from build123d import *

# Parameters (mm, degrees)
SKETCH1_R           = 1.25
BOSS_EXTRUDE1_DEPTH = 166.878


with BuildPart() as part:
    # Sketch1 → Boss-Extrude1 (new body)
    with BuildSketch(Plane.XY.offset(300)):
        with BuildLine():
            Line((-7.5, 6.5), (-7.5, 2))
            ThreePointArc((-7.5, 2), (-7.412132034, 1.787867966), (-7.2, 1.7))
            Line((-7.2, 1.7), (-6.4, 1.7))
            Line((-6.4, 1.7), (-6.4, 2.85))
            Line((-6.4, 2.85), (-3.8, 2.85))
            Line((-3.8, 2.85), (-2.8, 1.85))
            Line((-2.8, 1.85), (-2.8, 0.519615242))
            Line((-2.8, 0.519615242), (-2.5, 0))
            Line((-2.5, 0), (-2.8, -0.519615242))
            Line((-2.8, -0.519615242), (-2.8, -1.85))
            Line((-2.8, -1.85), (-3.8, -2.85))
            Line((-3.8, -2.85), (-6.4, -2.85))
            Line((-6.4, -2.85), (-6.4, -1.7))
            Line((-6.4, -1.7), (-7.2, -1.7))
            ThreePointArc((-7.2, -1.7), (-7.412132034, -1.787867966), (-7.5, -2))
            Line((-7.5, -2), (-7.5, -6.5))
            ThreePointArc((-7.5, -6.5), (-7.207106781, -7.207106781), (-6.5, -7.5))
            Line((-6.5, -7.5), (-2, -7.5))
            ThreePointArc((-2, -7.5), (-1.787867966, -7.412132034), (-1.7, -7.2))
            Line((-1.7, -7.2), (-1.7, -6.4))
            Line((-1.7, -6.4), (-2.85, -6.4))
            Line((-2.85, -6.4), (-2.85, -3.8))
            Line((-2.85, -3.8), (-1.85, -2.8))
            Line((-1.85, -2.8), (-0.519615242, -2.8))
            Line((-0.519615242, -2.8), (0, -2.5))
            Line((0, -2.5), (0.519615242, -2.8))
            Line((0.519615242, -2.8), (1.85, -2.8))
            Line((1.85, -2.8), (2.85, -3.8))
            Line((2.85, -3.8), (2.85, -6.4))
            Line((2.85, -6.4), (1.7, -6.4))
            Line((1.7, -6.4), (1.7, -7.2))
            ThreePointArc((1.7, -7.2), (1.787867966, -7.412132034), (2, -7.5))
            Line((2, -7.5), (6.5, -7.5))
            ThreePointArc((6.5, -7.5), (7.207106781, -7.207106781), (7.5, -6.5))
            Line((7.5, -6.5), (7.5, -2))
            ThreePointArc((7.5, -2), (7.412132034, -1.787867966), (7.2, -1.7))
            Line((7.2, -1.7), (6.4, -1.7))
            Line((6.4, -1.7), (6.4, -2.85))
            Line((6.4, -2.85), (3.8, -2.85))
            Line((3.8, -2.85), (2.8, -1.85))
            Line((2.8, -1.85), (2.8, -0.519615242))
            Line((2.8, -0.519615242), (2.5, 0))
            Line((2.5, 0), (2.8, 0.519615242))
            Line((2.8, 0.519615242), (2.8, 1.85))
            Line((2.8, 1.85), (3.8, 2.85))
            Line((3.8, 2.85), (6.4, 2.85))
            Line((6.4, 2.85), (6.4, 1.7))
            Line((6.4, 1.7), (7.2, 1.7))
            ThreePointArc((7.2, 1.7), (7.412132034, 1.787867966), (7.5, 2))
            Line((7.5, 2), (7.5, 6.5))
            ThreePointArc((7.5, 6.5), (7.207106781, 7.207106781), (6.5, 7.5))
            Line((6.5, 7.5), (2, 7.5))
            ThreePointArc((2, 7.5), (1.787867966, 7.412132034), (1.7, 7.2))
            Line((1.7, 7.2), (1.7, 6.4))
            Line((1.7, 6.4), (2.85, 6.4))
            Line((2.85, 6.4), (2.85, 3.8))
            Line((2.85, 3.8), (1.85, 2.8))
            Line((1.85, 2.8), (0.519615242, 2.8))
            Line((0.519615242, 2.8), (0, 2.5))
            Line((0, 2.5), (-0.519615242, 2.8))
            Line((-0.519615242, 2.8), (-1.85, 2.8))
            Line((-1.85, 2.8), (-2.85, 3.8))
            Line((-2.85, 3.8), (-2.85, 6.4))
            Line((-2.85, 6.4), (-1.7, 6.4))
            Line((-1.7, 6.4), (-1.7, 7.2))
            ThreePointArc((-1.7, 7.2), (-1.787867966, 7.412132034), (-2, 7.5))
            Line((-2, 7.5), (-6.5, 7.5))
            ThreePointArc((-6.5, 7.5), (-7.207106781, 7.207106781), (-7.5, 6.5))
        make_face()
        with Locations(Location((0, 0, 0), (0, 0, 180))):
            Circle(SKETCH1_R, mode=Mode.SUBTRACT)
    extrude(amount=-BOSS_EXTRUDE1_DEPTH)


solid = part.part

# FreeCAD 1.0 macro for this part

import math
import FreeCAD as App
import Part
import Sketcher
Q = App.Units.Quantity

doc = App.newDocument("Part")
params = doc.addObject("Spreadsheet::Sheet", "Params")
for row, (alias, value) in enumerate([
    ("sketch1_radius", "1 mm"),
    ("sketch1_diameter", "2.5 mm"),
    ("sketch1_radius2", "0.3 mm"),
    ("sketch1_width", "0.8 mm"),
    ("sketch1_width2", "2.6 mm"),
    ("pad1_length", "166.878 mm"),
], start=1):
    params.set(f"A{row}", alias)
    params.set(f"B{row}", "=" + value)
    params.setAlias(f"B{row}", alias)

body = doc.addObject("PartDesign::Body", "Body")

sketch1 = body.newObject("Sketcher::SketchObject", "Sketch")
sketch1.AttachmentSupport = (doc.getObject("XY_Plane"), [""])
sketch1.MapMode = "FlatFace"
sketch1.AttachmentOffset = App.Placement(App.Vector(0, 0, 300), App.Rotation())
sketch1.addGeometry([
    Part.LineSegment(App.Vector(-7.5, 6.5, 0), App.Vector(-7.5, 2, 0)),
    Part.ArcOfCircle(Part.Circle(App.Vector(-7.2, 2, 0), App.Vector(0, 0, 1), 0.3), math.radians(-180), math.radians(-90)),
    Part.LineSegment(App.Vector(-7.2, 1.7, 0), App.Vector(-6.4, 1.7, 0)),
    Part.LineSegment(App.Vector(-6.4, 1.7, 0), App.Vector(-6.4, 2.85, 0)),
    Part.LineSegment(App.Vector(-6.4, 2.85, 0), App.Vector(-3.8, 2.85, 0)),
    Part.LineSegment(App.Vector(-3.8, 2.85, 0), App.Vector(-2.8, 1.85, 0)),
    Part.LineSegment(App.Vector(-2.8, 1.85, 0), App.Vector(-2.8, 0.52, 0)),
    Part.LineSegment(App.Vector(-2.8, 0.52, 0), App.Vector(-2.5, 0, 0)),
    Part.LineSegment(App.Vector(-2.5, 0, 0), App.Vector(-2.8, -0.52, 0)),
    Part.LineSegment(App.Vector(-2.8, -0.52, 0), App.Vector(-2.8, -1.85, 0)),
    Part.LineSegment(App.Vector(-2.8, -1.85, 0), App.Vector(-3.8, -2.85, 0)),
    Part.LineSegment(App.Vector(-3.8, -2.85, 0), App.Vector(-6.4, -2.85, 0)),
    Part.LineSegment(App.Vector(-6.4, -2.85, 0), App.Vector(-6.4, -1.7, 0)),
    Part.LineSegment(App.Vector(-6.4, -1.7, 0), App.Vector(-7.2, -1.7, 0)),
    Part.ArcOfCircle(Part.Circle(App.Vector(-7.2, -2, 0), App.Vector(0, 0, 1), 0.3), math.radians(90), math.radians(180)),
    Part.LineSegment(App.Vector(-7.5, -2, 0), App.Vector(-7.5, -6.5, 0)),
    Part.ArcOfCircle(Part.Circle(App.Vector(-6.5, -6.5, 0), App.Vector(0, 0, 1), 1), math.radians(-180), math.radians(-90)),
    Part.LineSegment(App.Vector(-6.5, -7.5, 0), App.Vector(-2, -7.5, 0)),
    Part.ArcOfCircle(Part.Circle(App.Vector(-2, -7.2, 0), App.Vector(0, 0, 1), 0.3), math.radians(-90), math.radians(0)),
    Part.LineSegment(App.Vector(-1.7, -7.2, 0), App.Vector(-1.7, -6.4, 0)),
    Part.LineSegment(App.Vector(-1.7, -6.4, 0), App.Vector(-2.85, -6.4, 0)),
    Part.LineSegment(App.Vector(-2.85, -6.4, 0), App.Vector(-2.85, -3.8, 0)),
    Part.LineSegment(App.Vector(-2.85, -3.8, 0), App.Vector(-1.85, -2.8, 0)),
    Part.LineSegment(App.Vector(-1.85, -2.8, 0), App.Vector(-0.52, -2.8, 0)),
    Part.LineSegment(App.Vector(-0.52, -2.8, 0), App.Vector(0, -2.5, 0)),
    Part.LineSegment(App.Vector(0, -2.5, 0), App.Vector(0.52, -2.8, 0)),
    Part.LineSegment(App.Vector(0.52, -2.8, 0), App.Vector(1.85, -2.8, 0)),
    Part.LineSegment(App.Vector(1.85, -2.8, 0), App.Vector(2.85, -3.8, 0)),
    Part.LineSegment(App.Vector(2.85, -3.8, 0), App.Vector(2.85, -6.4, 0)),
    Part.LineSegment(App.Vector(2.85, -6.4, 0), App.Vector(1.7, -6.4, 0)),
    Part.LineSegment(App.Vector(1.7, -6.4, 0), App.Vector(1.7, -7.2, 0)),
    Part.ArcOfCircle(Part.Circle(App.Vector(2, -7.2, 0), App.Vector(0, 0, 1), 0.3), math.radians(-180), math.radians(-90)),
    Part.LineSegment(App.Vector(2, -7.5, 0), App.Vector(6.5, -7.5, 0)),
    Part.ArcOfCircle(Part.Circle(App.Vector(6.5, -6.5, 0), App.Vector(0, 0, 1), 1), math.radians(-90), math.radians(0)),
    Part.LineSegment(App.Vector(7.5, -6.5, 0), App.Vector(7.5, -2, 0)),
    Part.ArcOfCircle(Part.Circle(App.Vector(7.2, -2, 0), App.Vector(0, 0, 1), 0.3), math.radians(0), math.radians(90)),
    Part.LineSegment(App.Vector(7.2, -1.7, 0), App.Vector(6.4, -1.7, 0)),
    Part.LineSegment(App.Vector(6.4, -1.7, 0), App.Vector(6.4, -2.85, 0)),
    Part.LineSegment(App.Vector(6.4, -2.85, 0), App.Vector(3.8, -2.85, 0)),
    Part.LineSegment(App.Vector(3.8, -2.85, 0), App.Vector(2.8, -1.85, 0)),
    Part.LineSegment(App.Vector(2.8, -1.85, 0), App.Vector(2.8, -0.52, 0)),
    Part.LineSegment(App.Vector(2.8, -0.52, 0), App.Vector(2.5, 0, 0)),
    Part.LineSegment(App.Vector(2.5, 0, 0), App.Vector(2.8, 0.52, 0)),
    Part.LineSegment(App.Vector(2.8, 0.52, 0), App.Vector(2.8, 1.85, 0)),
    Part.LineSegment(App.Vector(2.8, 1.85, 0), App.Vector(3.8, 2.85, 0)),
    Part.LineSegment(App.Vector(3.8, 2.85, 0), App.Vector(6.4, 2.85, 0)),
    Part.LineSegment(App.Vector(6.4, 2.85, 0), App.Vector(6.4, 1.7, 0)),
    Part.LineSegment(App.Vector(6.4, 1.7, 0), App.Vector(7.2, 1.7, 0)),
    Part.ArcOfCircle(Part.Circle(App.Vector(7.2, 2, 0), App.Vector(0, 0, 1), 0.3), math.radians(-90), math.radians(0)),
    Part.LineSegment(App.Vector(7.5, 2, 0), App.Vector(7.5, 6.5, 0)),
    Part.ArcOfCircle(Part.Circle(App.Vector(6.5, 6.5, 0), App.Vector(0, 0, 1), 1), math.radians(0), math.radians(90)),
    Part.LineSegment(App.Vector(6.5, 7.5, 0), App.Vector(2, 7.5, 0)),
    Part.ArcOfCircle(Part.Circle(App.Vector(2, 7.2, 0), App.Vector(0, 0, 1), 0.3), math.radians(90), math.radians(180)),
    Part.LineSegment(App.Vector(1.7, 7.2, 0), App.Vector(1.7, 6.4, 0)),
    Part.LineSegment(App.Vector(1.7, 6.4, 0), App.Vector(2.85, 6.4, 0)),
    Part.LineSegment(App.Vector(2.85, 6.4, 0), App.Vector(2.85, 3.8, 0)),
    Part.LineSegment(App.Vector(2.85, 3.8, 0), App.Vector(1.85, 2.8, 0)),
    Part.LineSegment(App.Vector(1.85, 2.8, 0), App.Vector(0.52, 2.8, 0)),
    Part.LineSegment(App.Vector(0.52, 2.8, 0), App.Vector(0, 2.5, 0)),
    Part.LineSegment(App.Vector(0, 2.5, 0), App.Vector(-0.52, 2.8, 0)),
    Part.LineSegment(App.Vector(-0.52, 2.8, 0), App.Vector(-1.85, 2.8, 0)),
    Part.LineSegment(App.Vector(-1.85, 2.8, 0), App.Vector(-2.85, 3.8, 0)),
    Part.LineSegment(App.Vector(-2.85, 3.8, 0), App.Vector(-2.85, 6.4, 0)),
    Part.LineSegment(App.Vector(-2.85, 6.4, 0), App.Vector(-1.7, 6.4, 0)),
    Part.LineSegment(App.Vector(-1.7, 6.4, 0), App.Vector(-1.7, 7.2, 0)),
    Part.ArcOfCircle(Part.Circle(App.Vector(-2, 7.2, 0), App.Vector(0, 0, 1), 0.3), math.radians(0), math.radians(90)),
    Part.LineSegment(App.Vector(-2, 7.5, 0), App.Vector(-6.5, 7.5, 0)),
    Part.ArcOfCircle(Part.Circle(App.Vector(-6.5, 6.5, 0), App.Vector(0, 0, 1), 1), math.radians(90), math.radians(180)),
    Part.Circle(App.Vector(0, 0, 0), App.Vector(0, 0, 1), 1.25),
], False)
sketch1.addConstraint([
    Sketcher.Constraint("Tangent", 0, 2, 1, 1),
    Sketcher.Constraint("Tangent", 1, 2, 2, 1),
    Sketcher.Constraint("Coincident", 2, 2, 3, 1),
    Sketcher.Constraint("Coincident", 3, 2, 4, 1),
    Sketcher.Constraint("Coincident", 4, 2, 5, 1),
    Sketcher.Constraint("Coincident", 5, 2, 6, 1),
    Sketcher.Constraint("Coincident", 6, 2, 7, 1),
    Sketcher.Constraint("Coincident", 7, 2, 8, 1),
    Sketcher.Constraint("Coincident", 8, 2, 9, 1),
    Sketcher.Constraint("Coincident", 9, 2, 10, 1),
    Sketcher.Constraint("Coincident", 10, 2, 11, 1),
    Sketcher.Constraint("Coincident", 11, 2, 12, 1),
    Sketcher.Constraint("Coincident", 12, 2, 13, 1),
    Sketcher.Constraint("Tangent", 13, 2, 14, 1),
    Sketcher.Constraint("Tangent", 14, 2, 15, 1),
    Sketcher.Constraint("Tangent", 15, 2, 16, 1),
    Sketcher.Constraint("Tangent", 16, 2, 17, 1),
    Sketcher.Constraint("Tangent", 17, 2, 18, 1),
    Sketcher.Constraint("Tangent", 18, 2, 19, 1),
    Sketcher.Constraint("Coincident", 19, 2, 20, 1),
    Sketcher.Constraint("Coincident", 20, 2, 21, 1),
    Sketcher.Constraint("Coincident", 21, 2, 22, 1),
    Sketcher.Constraint("Coincident", 22, 2, 23, 1),
    Sketcher.Constraint("Coincident", 23, 2, 24, 1),
    Sketcher.Constraint("Coincident", 24, 2, 25, 1),
    Sketcher.Constraint("Coincident", 25, 2, 26, 1),
    Sketcher.Constraint("Coincident", 26, 2, 27, 1),
    Sketcher.Constraint("Coincident", 27, 2, 28, 1),
    Sketcher.Constraint("Coincident", 28, 2, 29, 1),
    Sketcher.Constraint("Coincident", 29, 2, 30, 1),
    Sketcher.Constraint("Tangent", 30, 2, 31, 1),
    Sketcher.Constraint("Tangent", 31, 2, 32, 1),
    Sketcher.Constraint("Tangent", 32, 2, 33, 1),
    Sketcher.Constraint("Tangent", 33, 2, 34, 1),
    Sketcher.Constraint("Tangent", 34, 2, 35, 1),
    Sketcher.Constraint("Tangent", 35, 2, 36, 1),
    Sketcher.Constraint("Coincident", 36, 2, 37, 1),
    Sketcher.Constraint("Coincident", 37, 2, 38, 1),
    Sketcher.Constraint("Coincident", 38, 2, 39, 1),
    Sketcher.Constraint("Coincident", 39, 2, 40, 1),
    Sketcher.Constraint("Coincident", 40, 2, 41, 1),
    Sketcher.Constraint("Coincident", 41, 2, 42, 1),
    Sketcher.Constraint("Coincident", 42, 2, 43, 1),
    Sketcher.Constraint("Coincident", 43, 2, 44, 1),
    Sketcher.Constraint("Coincident", 44, 2, 45, 1),
    Sketcher.Constraint("Coincident", 45, 2, 46, 1),
    Sketcher.Constraint("Coincident", 46, 2, 47, 1),
    Sketcher.Constraint("Tangent", 47, 2, 48, 1),
    Sketcher.Constraint("Tangent", 48, 2, 49, 1),
    Sketcher.Constraint("Tangent", 49, 2, 50, 1),
    Sketcher.Constraint("Tangent", 50, 2, 51, 1),
    Sketcher.Constraint("Tangent", 51, 2, 52, 1),
    Sketcher.Constraint("Tangent", 52, 2, 53, 1),
    Sketcher.Constraint("Coincident", 53, 2, 54, 1),
    Sketcher.Constraint("Coincident", 54, 2, 55, 1),
    Sketcher.Constraint("Coincident", 55, 2, 56, 1),
    Sketcher.Constraint("Coincident", 56, 2, 57, 1),
    Sketcher.Constraint("Coincident", 57, 2, 58, 1),
    Sketcher.Constraint("Coincident", 58, 2, 59, 1),
    Sketcher.Constraint("Coincident", 59, 2, 60, 1),
    Sketcher.Constraint("Coincident", 60, 2, 61, 1),
    Sketcher.Constraint("Coincident", 61, 2, 62, 1),
    Sketcher.Constraint("Coincident", 62, 2, 63, 1),
    Sketcher.Constraint("Coincident", 63, 2, 64, 1),
    Sketcher.Constraint("Tangent", 64, 2, 65, 1),
    Sketcher.Constraint("Tangent", 65, 2, 66, 1),
    Sketcher.Constraint("Tangent", 66, 2, 67, 1),
    Sketcher.Constraint("Tangent", 67, 2, 0, 1),
    Sketcher.Constraint("Vertical", 0),
    Sketcher.Constraint("Horizontal", 2),
    Sketcher.Constraint("Vertical", 3),
    Sketcher.Constraint("Horizontal", 4),
    Sketcher.Constraint("Vertical", 6),
    Sketcher.Constraint("Vertical", 9),
    Sketcher.Constraint("Horizontal", 11),
    Sketcher.Constraint("Vertical", 12),
    Sketcher.Constraint("Horizontal", 13),
    Sketcher.Constraint("Vertical", 15),
    Sketcher.Constraint("Horizontal", 17),
    Sketcher.Constraint("Vertical", 19),
    Sketcher.Constraint("Horizontal", 20),
    Sketcher.Constraint("Vertical", 21),
    Sketcher.Constraint("Horizontal", 23),
    Sketcher.Constraint("Horizontal", 26),
    Sketcher.Constraint("Vertical", 28),
    Sketcher.Constraint("Horizontal", 29),
    Sketcher.Constraint("Vertical", 30),
    Sketcher.Constraint("Horizontal", 32),
    Sketcher.Constraint("Vertical", 34),
    Sketcher.Constraint("Horizontal", 36),
    Sketcher.Constraint("Vertical", 37),
    Sketcher.Constraint("Horizontal", 38),
    Sketcher.Constraint("Vertical", 40),
    Sketcher.Constraint("Vertical", 43),
    Sketcher.Constraint("Horizontal", 45),
    Sketcher.Constraint("Vertical", 46),
    Sketcher.Constraint("Horizontal", 47),
    Sketcher.Constraint("Vertical", 49),
    Sketcher.Constraint("Horizontal", 51),
    Sketcher.Constraint("Vertical", 53),
    Sketcher.Constraint("Horizontal", 54),
    Sketcher.Constraint("Vertical", 55),
    Sketcher.Constraint("Horizontal", 57),
    Sketcher.Constraint("Horizontal", 60),
    Sketcher.Constraint("Vertical", 62),
    Sketcher.Constraint("Horizontal", 63),
    Sketcher.Constraint("Vertical", 64),
    Sketcher.Constraint("Horizontal", 66),
    Sketcher.Constraint("Coincident", 68, 3, -1, 1),
    Sketcher.Constraint("Equal", 1, 14),
    Sketcher.Constraint("Equal", 14, 18),
    Sketcher.Constraint("Equal", 18, 31),
    Sketcher.Constraint("Equal", 16, 33),
    Sketcher.Constraint("Equal", 31, 35),
    Sketcher.Constraint("Equal", 35, 48),
    Sketcher.Constraint("Equal", 33, 50),
    Sketcher.Constraint("Equal", 48, 52),
    Sketcher.Constraint("Equal", 52, 65),
    Sketcher.Constraint("Equal", 50, 67),
    Sketcher.Constraint("Symmetric", 1, 3, 35, 3, -1, 1),
    Sketcher.Constraint("Symmetric", 14, 3, 48, 3, -1, 1),
    Sketcher.Constraint("Symmetric", 18, 3, 52, 3, -1, 1),
    Sketcher.Constraint("Symmetric", 31, 3, 65, 3, -1, 1),
    Sketcher.Constraint("Symmetric", 3, 2, 37, 2, -1, 1),
    Sketcher.Constraint("Symmetric", 5, 2, 39, 2, -1, 1),
    Sketcher.Constraint("Symmetric", 7, 2, 41, 2, -1, 1),
    Sketcher.Constraint("Symmetric", 8, 2, 42, 2, -1, 1),
    Sketcher.Constraint("Symmetric", 10, 2, 44, 2, -1, 1),
    Sketcher.Constraint("Symmetric", 20, 2, 54, 2, -1, 1),
    Sketcher.Constraint("Symmetric", 22, 2, 56, 2, -1, 1),
    Sketcher.Constraint("Symmetric", 24, 2, 58, 2, -1, 1),
    Sketcher.Constraint("Symmetric", 25, 2, 59, 2, -1, 1),
    Sketcher.Constraint("Symmetric", 27, 2, 61, 2, -1, 1),
    Sketcher.Constraint("Symmetric", 18, 3, 31, 3, -2),
    Sketcher.Constraint("Symmetric", 14, 3, 35, 3, -2),
    Sketcher.Constraint("Symmetric", 23, 2, 25, 2, -2),
    Sketcher.Constraint("Symmetric", 21, 2, 27, 2, -2),
    Sketcher.Constraint("Symmetric", 11, 2, 37, 2, -2),
    Sketcher.Constraint("Symmetric", 9, 2, 39, 2, -2),
    Sketcher.Constraint("PointOnObject", 7, 2, -1),
    Sketcher.Constraint("PointOnObject", 24, 2, -2),
    Sketcher.Constraint("Perpendicular", 5, 10),
    Sketcher.Constraint("Parallel", 10, 22),
    Sketcher.Constraint("Perpendicular", 7, 24),
    Sketcher.Constraint("Perpendicular", 8, 25),
    Sketcher.Constraint("Perpendicular", 22, 27),
    Sketcher.Constraint("Parallel", 27, 39),
    Sketcher.Constraint("Perpendicular", 24, 41),
    Sketcher.Constraint("Perpendicular", 39, 44),
    Sketcher.Constraint("Parallel", 44, 56),
    Sketcher.Constraint("Perpendicular", 41, 58),
    Sketcher.Constraint("Perpendicular", 56, 61),
    Sketcher.Constraint("Horizontal", 20, 2, 28, 2),
    Sketcher.Constraint("Horizontal", 54, 2, 62, 2),
    Sketcher.Constraint("Vertical", 4, 2, 10, 2),
    Sketcher.Constraint("Vertical", 37, 2, 45, 2),
    Sketcher.Constraint("Equal", 66, 0),
    Sketcher.Constraint("Equal", 63, 3),
    Sketcher.Constraint("Equal", 60, 6),
    Sketcher.Constraint("Equal", 47, 19),
    Sketcher.Constraint("Equal", 45, 21),
    Sketcher.Constraint("Equal", 10, 22),
    Sketcher.Constraint("Equal", 8, 24),
    Sketcher.Constraint("Radius", 16, Q("1 mm")),
    Sketcher.Constraint("Diameter", 68, Q("2.5 mm")),
    Sketcher.Constraint("Radius", 1, Q("0.3 mm")),
    Sketcher.Constraint("Angle", 7, Q("-60 deg")),
    Sketcher.Constraint("DistanceX", 2, 1, 2, 2, Q("0.8 mm")),
    Sketcher.Constraint("DistanceX", 4, 1, 4, 2, Q("2.6 mm")),
    Sketcher.Constraint("DistanceX", 17, 1, 17, 2, Q("4.5 mm")),
    Sketcher.Constraint("DistanceY", -1, 1, 1, 3, Q("2 mm")),
    Sketcher.Constraint("Distance", 7, Q("0.6 mm")),
    Sketcher.Constraint("DistanceX", 20, 2, 20, 1, Q("1.15 mm")),
    Sketcher.Constraint("DistanceX", 5, 2, -1, 1, Q("2.8 mm")),
])
sketch1.setExpression("Constraints[163]", "Params.sketch1_radius")
sketch1.setExpression("Constraints[164]", "Params.sketch1_diameter")
sketch1.setExpression("Constraints[165]", "Params.sketch1_radius2")
sketch1.setExpression("Constraints[167]", "Params.sketch1_width")
sketch1.setExpression("Constraints[168]", "Params.sketch1_width2")
pad1 = body.newObject("PartDesign::Pad", "Pad")
pad1.Profile = sketch1
pad1.setExpression("Length", "Params.pad1_length")
pad1.Reversed = True

doc.recompute()
